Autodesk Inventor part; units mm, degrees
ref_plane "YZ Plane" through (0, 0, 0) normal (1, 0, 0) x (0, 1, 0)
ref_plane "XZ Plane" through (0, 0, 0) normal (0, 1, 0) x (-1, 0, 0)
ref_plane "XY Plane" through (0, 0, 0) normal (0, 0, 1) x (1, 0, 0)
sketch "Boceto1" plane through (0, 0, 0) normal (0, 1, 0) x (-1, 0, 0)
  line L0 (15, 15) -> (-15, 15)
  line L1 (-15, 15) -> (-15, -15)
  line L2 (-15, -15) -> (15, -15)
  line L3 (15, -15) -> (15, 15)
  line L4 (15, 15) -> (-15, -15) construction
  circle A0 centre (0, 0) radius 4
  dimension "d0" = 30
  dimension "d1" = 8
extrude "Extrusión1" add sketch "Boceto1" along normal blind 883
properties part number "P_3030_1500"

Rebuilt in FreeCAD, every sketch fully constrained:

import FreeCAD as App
import Part
import Sketcher
Q = App.Units.Quantity


def add_polygon(sketch, points):
    """Adds a closed chain of lines whose ends are joined by coincident constraints."""
    first, n = sketch.GeometryCount, len(points)
    for a, b in zip(points, points[1:] + points[:1]):
        sketch.addGeometry(Part.LineSegment(App.Vector(*a, 0), App.Vector(*b, 0)), False)
    for i in range(n):
        sketch.addConstraint(Sketcher.Constraint("Coincident", first + i, 2, first + (i + 1) % n, 1))

doc = App.newDocument("Part")
body = doc.addObject("PartDesign::Body", "Body")

sketch1 = body.newObject("Sketcher::SketchObject", "Sketch")
sketch1.AttachmentSupport = (doc.getObject("XZ_Plane"), [""])
sketch1.MapMode = "FlatFace"
add_polygon(sketch1, [(-15, -15), (-15, 15), (15, 15), (15, -15)])
sketch1.addGeometry(Part.Circle(App.Vector(0, 0, 0), App.Vector(0, 0, 1), 4), False)
sketch1.addConstraint(Sketcher.Constraint("Vertical", 0))
sketch1.addConstraint(Sketcher.Constraint("Horizontal", 1))
sketch1.addConstraint(Sketcher.Constraint("Vertical", 2))
sketch1.addConstraint(Sketcher.Constraint("Horizontal", 3))
sketch1.addConstraint(Sketcher.Constraint("Coincident", 4, 3, -1, 1))
sketch1.addConstraint(Sketcher.Constraint("Symmetric", 0, 2, 2, 2, -1, 1))
sketch1.addConstraint(Sketcher.Constraint("Equal", 3, 0))
sketch1.addConstraint(Sketcher.Constraint("Diameter", 4, Q("8 mm")))
sketch1.addConstraint(Sketcher.Constraint("DistanceX", 1, 1, 1, 2, Q("30 mm")))
pad1 = body.newObject("PartDesign::Pad", "Pad")
pad1.Profile = sketch1
pad1.Length = 883
pad1.Reversed = True

doc.recompute()
